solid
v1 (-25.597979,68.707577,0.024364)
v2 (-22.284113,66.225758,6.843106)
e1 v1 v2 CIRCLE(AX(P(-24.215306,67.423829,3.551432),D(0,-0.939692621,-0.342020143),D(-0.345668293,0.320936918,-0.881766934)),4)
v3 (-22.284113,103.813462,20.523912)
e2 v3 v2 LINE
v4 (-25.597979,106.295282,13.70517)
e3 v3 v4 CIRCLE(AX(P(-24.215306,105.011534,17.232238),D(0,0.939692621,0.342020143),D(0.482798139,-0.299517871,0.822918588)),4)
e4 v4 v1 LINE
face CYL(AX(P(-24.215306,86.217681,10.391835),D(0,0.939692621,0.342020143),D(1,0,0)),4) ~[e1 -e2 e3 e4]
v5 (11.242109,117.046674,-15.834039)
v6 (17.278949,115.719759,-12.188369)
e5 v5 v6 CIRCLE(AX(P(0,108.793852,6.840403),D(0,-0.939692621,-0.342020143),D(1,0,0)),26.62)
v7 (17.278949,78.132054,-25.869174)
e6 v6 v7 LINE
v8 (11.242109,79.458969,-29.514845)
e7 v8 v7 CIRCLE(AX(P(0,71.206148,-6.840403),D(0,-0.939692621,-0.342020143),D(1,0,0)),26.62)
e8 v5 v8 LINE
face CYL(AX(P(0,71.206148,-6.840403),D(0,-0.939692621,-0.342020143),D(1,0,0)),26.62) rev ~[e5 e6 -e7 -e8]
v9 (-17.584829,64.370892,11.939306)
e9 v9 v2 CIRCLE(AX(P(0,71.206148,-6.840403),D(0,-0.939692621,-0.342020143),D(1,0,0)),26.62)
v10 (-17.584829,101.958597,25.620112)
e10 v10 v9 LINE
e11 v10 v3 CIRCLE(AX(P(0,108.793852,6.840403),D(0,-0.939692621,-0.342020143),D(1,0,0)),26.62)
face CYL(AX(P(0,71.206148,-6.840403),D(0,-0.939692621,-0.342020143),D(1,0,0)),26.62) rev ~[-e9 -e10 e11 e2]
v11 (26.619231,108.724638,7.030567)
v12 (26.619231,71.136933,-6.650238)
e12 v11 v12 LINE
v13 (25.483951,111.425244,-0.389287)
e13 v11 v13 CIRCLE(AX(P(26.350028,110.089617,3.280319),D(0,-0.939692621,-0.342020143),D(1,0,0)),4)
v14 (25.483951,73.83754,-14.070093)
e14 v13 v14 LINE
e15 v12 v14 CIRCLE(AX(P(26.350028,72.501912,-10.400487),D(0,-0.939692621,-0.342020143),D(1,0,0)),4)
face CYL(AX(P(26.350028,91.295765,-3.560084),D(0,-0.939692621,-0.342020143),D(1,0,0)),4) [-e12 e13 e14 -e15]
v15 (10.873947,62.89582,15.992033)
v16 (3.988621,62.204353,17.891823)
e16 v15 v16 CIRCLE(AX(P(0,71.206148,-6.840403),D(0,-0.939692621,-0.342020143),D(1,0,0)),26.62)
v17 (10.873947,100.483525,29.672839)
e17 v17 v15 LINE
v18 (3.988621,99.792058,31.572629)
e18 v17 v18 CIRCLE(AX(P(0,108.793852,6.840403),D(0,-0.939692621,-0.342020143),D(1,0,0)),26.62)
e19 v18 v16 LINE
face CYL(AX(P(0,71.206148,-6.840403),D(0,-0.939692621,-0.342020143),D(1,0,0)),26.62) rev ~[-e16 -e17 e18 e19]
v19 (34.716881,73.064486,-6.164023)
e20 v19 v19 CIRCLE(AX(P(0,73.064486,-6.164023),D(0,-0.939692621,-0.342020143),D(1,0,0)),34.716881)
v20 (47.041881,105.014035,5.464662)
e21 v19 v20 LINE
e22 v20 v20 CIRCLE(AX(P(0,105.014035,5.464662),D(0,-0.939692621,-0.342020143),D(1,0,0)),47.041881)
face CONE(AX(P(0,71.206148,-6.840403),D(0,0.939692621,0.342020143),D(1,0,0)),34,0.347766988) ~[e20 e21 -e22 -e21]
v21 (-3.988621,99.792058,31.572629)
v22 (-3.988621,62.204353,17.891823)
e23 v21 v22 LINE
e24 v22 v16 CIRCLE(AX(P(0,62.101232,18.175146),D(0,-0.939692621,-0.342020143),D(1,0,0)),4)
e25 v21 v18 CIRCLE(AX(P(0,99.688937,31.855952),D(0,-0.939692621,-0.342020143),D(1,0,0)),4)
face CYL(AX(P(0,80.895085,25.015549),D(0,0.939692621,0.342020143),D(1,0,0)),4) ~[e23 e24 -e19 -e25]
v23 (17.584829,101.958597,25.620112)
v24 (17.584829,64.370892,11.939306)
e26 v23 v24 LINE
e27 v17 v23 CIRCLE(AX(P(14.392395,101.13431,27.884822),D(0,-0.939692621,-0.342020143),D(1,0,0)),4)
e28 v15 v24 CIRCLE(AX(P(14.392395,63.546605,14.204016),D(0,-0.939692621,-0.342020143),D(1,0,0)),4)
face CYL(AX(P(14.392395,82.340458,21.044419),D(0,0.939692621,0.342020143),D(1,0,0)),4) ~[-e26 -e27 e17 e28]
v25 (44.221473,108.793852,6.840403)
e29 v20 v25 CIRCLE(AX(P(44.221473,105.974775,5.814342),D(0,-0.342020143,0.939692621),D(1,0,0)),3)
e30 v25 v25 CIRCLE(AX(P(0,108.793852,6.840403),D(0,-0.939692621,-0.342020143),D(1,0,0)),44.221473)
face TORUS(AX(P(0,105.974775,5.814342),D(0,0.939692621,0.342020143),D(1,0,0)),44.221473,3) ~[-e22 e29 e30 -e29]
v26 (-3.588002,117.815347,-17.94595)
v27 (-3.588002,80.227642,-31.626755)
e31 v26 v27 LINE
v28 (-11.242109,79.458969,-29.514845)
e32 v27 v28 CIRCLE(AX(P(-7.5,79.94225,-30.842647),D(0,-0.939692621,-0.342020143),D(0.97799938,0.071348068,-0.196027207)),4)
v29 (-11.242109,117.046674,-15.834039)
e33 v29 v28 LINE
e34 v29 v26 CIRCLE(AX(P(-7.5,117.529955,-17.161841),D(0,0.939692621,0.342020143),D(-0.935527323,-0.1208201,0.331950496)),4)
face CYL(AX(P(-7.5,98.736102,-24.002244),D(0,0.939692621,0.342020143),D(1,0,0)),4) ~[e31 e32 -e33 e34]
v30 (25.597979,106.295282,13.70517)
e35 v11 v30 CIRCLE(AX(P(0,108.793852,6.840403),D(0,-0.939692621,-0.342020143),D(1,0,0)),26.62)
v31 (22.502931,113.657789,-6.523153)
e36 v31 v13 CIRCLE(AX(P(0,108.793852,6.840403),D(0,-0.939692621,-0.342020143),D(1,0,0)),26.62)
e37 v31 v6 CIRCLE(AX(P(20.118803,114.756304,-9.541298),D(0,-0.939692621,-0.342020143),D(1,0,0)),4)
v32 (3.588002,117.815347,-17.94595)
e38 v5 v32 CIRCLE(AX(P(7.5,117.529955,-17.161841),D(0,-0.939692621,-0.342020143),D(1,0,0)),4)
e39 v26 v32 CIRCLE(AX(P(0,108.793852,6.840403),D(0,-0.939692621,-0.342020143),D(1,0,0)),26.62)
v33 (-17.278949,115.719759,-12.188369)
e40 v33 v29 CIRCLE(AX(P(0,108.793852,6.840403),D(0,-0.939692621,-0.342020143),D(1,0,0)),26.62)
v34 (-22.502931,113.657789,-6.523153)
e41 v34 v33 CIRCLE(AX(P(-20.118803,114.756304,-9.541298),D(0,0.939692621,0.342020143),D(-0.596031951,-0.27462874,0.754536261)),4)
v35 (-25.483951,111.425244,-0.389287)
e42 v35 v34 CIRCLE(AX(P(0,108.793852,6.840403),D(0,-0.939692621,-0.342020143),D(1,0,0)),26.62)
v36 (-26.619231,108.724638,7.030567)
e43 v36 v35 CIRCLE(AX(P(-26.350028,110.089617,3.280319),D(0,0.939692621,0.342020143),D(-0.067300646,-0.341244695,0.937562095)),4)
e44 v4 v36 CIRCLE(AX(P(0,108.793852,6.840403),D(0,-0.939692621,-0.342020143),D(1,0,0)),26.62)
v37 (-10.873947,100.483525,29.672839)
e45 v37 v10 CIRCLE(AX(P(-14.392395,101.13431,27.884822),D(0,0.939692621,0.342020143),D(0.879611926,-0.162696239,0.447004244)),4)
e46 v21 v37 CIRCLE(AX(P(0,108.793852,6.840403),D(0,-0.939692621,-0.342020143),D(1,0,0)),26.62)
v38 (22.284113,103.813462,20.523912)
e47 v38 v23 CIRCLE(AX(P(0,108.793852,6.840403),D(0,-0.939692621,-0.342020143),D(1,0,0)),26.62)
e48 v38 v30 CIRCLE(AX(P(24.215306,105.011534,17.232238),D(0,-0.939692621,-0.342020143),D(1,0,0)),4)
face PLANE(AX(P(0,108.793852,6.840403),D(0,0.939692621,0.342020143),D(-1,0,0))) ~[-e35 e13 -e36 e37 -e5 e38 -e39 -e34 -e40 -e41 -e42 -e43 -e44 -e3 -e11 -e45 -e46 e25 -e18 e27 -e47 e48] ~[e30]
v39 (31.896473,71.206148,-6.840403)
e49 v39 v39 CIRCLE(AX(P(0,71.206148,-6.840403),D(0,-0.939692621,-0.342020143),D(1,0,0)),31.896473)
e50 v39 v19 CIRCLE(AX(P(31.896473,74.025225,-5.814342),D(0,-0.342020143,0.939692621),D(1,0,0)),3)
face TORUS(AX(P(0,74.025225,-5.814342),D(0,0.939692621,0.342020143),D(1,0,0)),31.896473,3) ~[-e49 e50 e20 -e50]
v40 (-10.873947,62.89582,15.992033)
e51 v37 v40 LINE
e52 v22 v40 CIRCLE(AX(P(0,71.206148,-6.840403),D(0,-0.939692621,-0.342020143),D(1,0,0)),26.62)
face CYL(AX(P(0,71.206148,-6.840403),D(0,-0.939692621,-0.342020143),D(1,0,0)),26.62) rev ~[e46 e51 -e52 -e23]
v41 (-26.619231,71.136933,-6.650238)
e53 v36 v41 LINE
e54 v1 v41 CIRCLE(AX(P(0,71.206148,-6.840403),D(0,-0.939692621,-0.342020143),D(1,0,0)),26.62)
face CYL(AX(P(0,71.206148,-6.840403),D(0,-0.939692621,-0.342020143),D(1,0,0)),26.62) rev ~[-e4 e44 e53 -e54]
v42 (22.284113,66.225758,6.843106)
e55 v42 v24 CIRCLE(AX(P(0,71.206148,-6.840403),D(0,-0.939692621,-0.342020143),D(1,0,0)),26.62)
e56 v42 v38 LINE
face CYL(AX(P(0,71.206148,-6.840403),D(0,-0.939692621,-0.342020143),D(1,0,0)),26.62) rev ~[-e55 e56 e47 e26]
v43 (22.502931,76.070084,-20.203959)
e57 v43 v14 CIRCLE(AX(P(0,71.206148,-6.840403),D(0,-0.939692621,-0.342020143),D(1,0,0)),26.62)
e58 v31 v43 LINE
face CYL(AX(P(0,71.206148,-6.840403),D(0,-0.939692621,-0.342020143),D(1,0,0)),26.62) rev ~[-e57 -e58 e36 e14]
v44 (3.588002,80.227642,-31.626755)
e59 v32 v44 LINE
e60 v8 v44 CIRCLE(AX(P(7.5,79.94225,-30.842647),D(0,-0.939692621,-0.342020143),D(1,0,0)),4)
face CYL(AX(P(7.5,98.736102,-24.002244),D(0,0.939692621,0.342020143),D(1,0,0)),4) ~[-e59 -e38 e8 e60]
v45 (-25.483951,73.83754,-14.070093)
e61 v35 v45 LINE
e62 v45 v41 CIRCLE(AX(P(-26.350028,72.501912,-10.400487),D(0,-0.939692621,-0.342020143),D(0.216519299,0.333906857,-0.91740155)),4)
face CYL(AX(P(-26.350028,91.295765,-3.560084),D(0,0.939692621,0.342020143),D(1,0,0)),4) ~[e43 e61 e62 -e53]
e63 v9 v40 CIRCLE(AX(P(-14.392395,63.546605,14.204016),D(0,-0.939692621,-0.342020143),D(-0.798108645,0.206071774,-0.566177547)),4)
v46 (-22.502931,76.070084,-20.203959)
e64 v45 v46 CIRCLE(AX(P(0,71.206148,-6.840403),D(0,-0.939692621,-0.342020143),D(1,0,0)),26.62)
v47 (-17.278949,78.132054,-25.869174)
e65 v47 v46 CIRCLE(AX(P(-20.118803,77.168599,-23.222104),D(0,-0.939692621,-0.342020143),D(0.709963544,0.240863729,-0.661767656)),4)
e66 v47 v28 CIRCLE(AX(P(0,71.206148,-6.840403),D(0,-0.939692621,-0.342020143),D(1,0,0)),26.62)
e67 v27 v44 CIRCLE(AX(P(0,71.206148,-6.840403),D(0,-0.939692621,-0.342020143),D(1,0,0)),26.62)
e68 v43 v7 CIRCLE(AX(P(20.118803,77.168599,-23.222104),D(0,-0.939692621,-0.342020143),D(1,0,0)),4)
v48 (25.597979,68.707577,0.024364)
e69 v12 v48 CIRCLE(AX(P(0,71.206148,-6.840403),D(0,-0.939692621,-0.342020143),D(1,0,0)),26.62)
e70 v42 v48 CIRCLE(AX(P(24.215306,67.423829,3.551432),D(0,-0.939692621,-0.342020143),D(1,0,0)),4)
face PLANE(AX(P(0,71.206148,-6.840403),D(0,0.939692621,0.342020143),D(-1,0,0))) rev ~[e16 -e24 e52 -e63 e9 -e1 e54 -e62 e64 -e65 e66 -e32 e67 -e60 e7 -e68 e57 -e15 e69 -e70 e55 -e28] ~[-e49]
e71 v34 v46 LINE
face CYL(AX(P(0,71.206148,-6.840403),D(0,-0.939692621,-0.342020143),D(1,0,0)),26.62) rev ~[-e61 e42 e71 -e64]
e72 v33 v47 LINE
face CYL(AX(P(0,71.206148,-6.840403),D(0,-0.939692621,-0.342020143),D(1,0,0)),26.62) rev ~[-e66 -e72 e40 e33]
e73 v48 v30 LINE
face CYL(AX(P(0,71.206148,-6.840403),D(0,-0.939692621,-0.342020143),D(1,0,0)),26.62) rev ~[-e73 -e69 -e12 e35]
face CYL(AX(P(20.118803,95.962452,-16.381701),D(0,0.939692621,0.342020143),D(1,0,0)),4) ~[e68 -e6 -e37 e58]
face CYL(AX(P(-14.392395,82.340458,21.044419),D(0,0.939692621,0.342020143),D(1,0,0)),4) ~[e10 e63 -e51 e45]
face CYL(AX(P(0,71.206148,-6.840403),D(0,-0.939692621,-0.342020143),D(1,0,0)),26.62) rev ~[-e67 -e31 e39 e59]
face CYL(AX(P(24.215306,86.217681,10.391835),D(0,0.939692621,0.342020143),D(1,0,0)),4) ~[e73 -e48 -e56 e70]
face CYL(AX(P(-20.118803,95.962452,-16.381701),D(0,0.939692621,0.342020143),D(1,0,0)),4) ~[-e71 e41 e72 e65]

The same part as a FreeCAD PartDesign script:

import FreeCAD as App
import Part
import Sketcher
from FreeCAD import Vector


def edges_at(feature, points):
    """Names of the edges that pass closest to the given points."""
    edges = feature.Shape.Edges
    near = lambda p: min(range(len(edges)), key=lambda i: edges[i].distToShape(Part.Vertex(*p))[0])
    return sorted({f"Edge{near(p) + 1}" for p in points})

doc = App.newDocument("Part")
body = doc.addObject("PartDesign::Body", "Body")
body.AllowCompound = True

# Sketch on XZ plane
sketch1 = doc.addObject("Sketcher::SketchObject", "Sketch")
body.addObject(sketch1)
sketch1.AttachmentSupport = (doc.XZ_Plane, [""])
sketch1.MapMode = "FlatFace"
sketch1.addGeometry(Part.Circle(Vector(0, 26.620991, 0), Vector(0, 0, 1), 4), False)
sketch1.addGeometry(Part.Circle(Vector(14.392395, 22.395003, 0), Vector(0, 0, 1), 4), False)
sketch1.addGeometry(Part.Circle(Vector(24.215306, 11.05876, 0), Vector(0, 0, 1), 4), False)
sketch1.addGeometry(Part.Circle(Vector(26.350028, -3.788562, 0), Vector(0, 0, 1), 4), False)
sketch1.addGeometry(Part.Circle(Vector(20.118803, -17.433042, 0), Vector(0, 0, 1), 4), False)
sketch1.addGeometry(Part.Circle(Vector(7.5, -25.542654, 0), Vector(0, 0, 1), 4), False)
sketch1.addGeometry(Part.Circle(Vector(-7.5, -25.542654, 0), Vector(0, 0, 1), 4), False)
sketch1.addGeometry(Part.Circle(Vector(-26.350028, -3.788562, 0), Vector(0, 0, 1), 4), False)
sketch1.addGeometry(Part.Circle(Vector(-24.215306, 11.05876, 0), Vector(0, 0, 1), 4), False)
sketch1.addGeometry(Part.Circle(Vector(-14.392395, 22.395003, 0), Vector(0, 0, 1), 4), False)
sketch1.addGeometry(Part.Circle(Vector(-20.118803, -17.433042, 0), Vector(0, 0, 1), 4), False)
sketch1.addConstraint(Sketcher.Constraint("Equal", 0, 1))
sketch1.addConstraint(Sketcher.Constraint("Equal", 1, 2))
sketch1.addConstraint(Sketcher.Constraint("Equal", 2, 3))
sketch1.addConstraint(Sketcher.Constraint("Equal", 3, 4))
sketch1.addConstraint(Sketcher.Constraint("Equal", 4, 5))
sketch1.addConstraint(Sketcher.Constraint("Equal", 5, 6))
sketch1.addConstraint(Sketcher.Constraint("Equal", 6, 7))
sketch1.addConstraint(Sketcher.Constraint("Equal", 7, 8))
sketch1.addConstraint(Sketcher.Constraint("Equal", 8, 9))
sketch1.addConstraint(Sketcher.Constraint("Equal", 9, 10))
sketch1.addConstraint(Sketcher.Constraint("Symmetric", 5, 3, 6, 3, -2))
sketch1.addConstraint(Sketcher.Constraint("Symmetric", 3, 3, 7, 3, -2))
sketch1.addConstraint(Sketcher.Constraint("Symmetric", 2, 3, 8, 3, -2))
sketch1.addConstraint(Sketcher.Constraint("Symmetric", 1, 3, 9, 3, -2))
sketch1.addConstraint(Sketcher.Constraint("Symmetric", 4, 3, 10, 3, -2))
sketch1.addConstraint(Sketcher.Constraint("PointOnObject", 0, 3, -2))
sketch1.addConstraint(Sketcher.Constraint("Diameter", 0, 8.0))
sketch1.addConstraint(Sketcher.Constraint("DistanceX", 6, 3, 5, 3, 15.0))
sketch1.addConstraint(Sketcher.Constraint("DistanceY", 4, 3, 2, 3, 28.491802))
sketch1.addConstraint(Sketcher.Constraint("DistanceX", 8, 3, 1, 3, 38.6077))
sketch1.addConstraint(Sketcher.Constraint("DistanceY", -1, 1, 0, 3, 26.620991))
sketch1.addConstraint(Sketcher.Constraint("DistanceY", -1, 1, 2, 3, 11.05876))
sketch1.addConstraint(Sketcher.Constraint("DistanceX", -1, 1, 3, 3, 26.350028))
sketch1.addConstraint(Sketcher.Constraint("DistanceY", 1, 3, 0, 3, 4.225988))
sketch1.addConstraint(Sketcher.Constraint("DistanceX", 1, 3, 2, 3, 9.822911))
sketch1.addConstraint(Sketcher.Constraint("DistanceY", 3, 3, 2, 3, 14.847322))
sketch1.addConstraint(Sketcher.Constraint("DistanceX", 1, 3, 4, 3, 5.726408))
sketch1.addConstraint(Sketcher.Constraint("DistanceY", 5, 3, -1, 1, 25.542654))
pad1 = doc.addObject("PartDesign::Pad", "Pad")
body.addObject(pad1)
pad1.Profile = sketch1
pad1.Length = 40
pad1.Midplane = True
body2 = doc.addObject("PartDesign::Body", "Body001")

# Sketch on XY plane
sketch2 = doc.addObject("Sketcher::SketchObject", "Sketch001")
body2.addObject(sketch2)
sketch2.AttachmentSupport = (doc.getObject("XY_Plane001"), [""])
sketch2.MapMode = "FlatFace"
sketch2.addGeometry(Part.Circle(Vector(0, 0, 0), Vector(0, 0, 1), 26.62), False)
sketch2.addConstraint(Sketcher.Constraint("Coincident", 0, 3, -1, 1))
sketch2.addConstraint(Sketcher.Constraint("Diameter", 0, 53.24))
pad2 = doc.addObject("PartDesign::Pad", "Pad001")
body2.addObject(pad2)
pad2.Profile = sketch2
pad2.Length = 40
body3 = doc.addObject("PartDesign::Body", "Body002")
doc.recompute()

body2.Placement = App.Placement(Vector(0, 0, 0), App.Rotation(Vector(1, 0, 0), 90))
boolean = doc.addObject("PartDesign::Boolean", "Boolean")
body3.addObject(boolean)
boolean.Type = "Fuse"
boolean.addObjects([body2])
body4 = doc.addObject("PartDesign::Body", "Body003")
doc.recompute()

body3.Placement = App.Placement(Vector(0, 20, 0), App.Rotation(Vector(0, 0, 1), 0))
boolean2 = doc.addObject("PartDesign::Boolean", "Boolean001")
body4.addObject(boolean2)
boolean2.Type = "Fuse"
boolean2.addObjects([body3])
doc.recompute()

boolean3 = doc.addObject("PartDesign::Boolean", "Boolean002")
body4.addObject(boolean3)
boolean3.Type = "Cut"
boolean3.addObjects([body])
body5 = doc.addObject("PartDesign::Body", "Body004")
doc.recompute()

body4.Placement = App.Placement(Vector(0, 0, 0), App.Rotation(Vector(1, 0, 0), 340))
boolean4 = doc.addObject("PartDesign::Boolean", "Boolean003")
body5.addObject(boolean4)
boolean4.Type = "Fuse"
boolean4.addObjects([body4])
body6 = doc.addObject("PartDesign::Body", "Body005")

# Sketch on XZ plane
sketch3 = doc.addObject("Sketcher::SketchObject", "Sketch002")
body6.addObject(sketch3)
sketch3.AttachmentSupport = (doc.getObject("XZ_Plane005"), [""])
sketch3.MapMode = "FlatFace"
sketch3.addGeometry(Part.LineSegment(Vector(0, 0, 0), Vector(34, 0, 0)), False)
sketch3.addGeometry(Part.LineSegment(Vector(34, 0, 0), Vector(48.5, 40, 0)), False)
sketch3.addGeometry(Part.LineSegment(Vector(48.5, 40, 0), Vector(0, 40, 0)), False)
sketch3.addGeometry(Part.LineSegment(Vector(0, 40, 0), Vector(0, 0, 0)), False)
sketch3.addConstraint(Sketcher.Constraint("Coincident", 0, 2, 1, 1))
sketch3.addConstraint(Sketcher.Constraint("Coincident", 1, 2, 2, 1))
sketch3.addConstraint(Sketcher.Constraint("Coincident", 2, 2, 3, 1))
sketch3.addConstraint(Sketcher.Constraint("Coincident", 3, 2, 0, 1))
sketch3.addConstraint(Sketcher.Constraint("Horizontal", 0))
sketch3.addConstraint(Sketcher.Constraint("Horizontal", 2))
sketch3.addConstraint(Sketcher.Constraint("Vertical", 3))
sketch3.addConstraint(Sketcher.Constraint("Coincident", 3, 2, -1, 1))
sketch3.addConstraint(Sketcher.Constraint("DistanceX", 0, 1, 0, 2, 34.0))
sketch3.addConstraint(Sketcher.Constraint("DistanceY", 3, 2, 3, 1, 40.0))
sketch3.addConstraint(Sketcher.Constraint("DistanceX", 2, 2, 2, 1, 48.5))
revolution = doc.addObject("PartDesign::Revolution", "Revolution")
body6.addObject(revolution)
revolution.Profile = sketch3
revolution.ReferenceAxis = (sketch3, ["V_Axis"])
revolution.Angle = 360
body7 = doc.addObject("PartDesign::Body", "Body006")
doc.recompute()

body6.Placement = App.Placement(Vector(0, 18.793852, -6.840403), App.Rotation(Vector(1, 0, 0), 70))
boolean5 = doc.addObject("PartDesign::Boolean", "Boolean004")
body7.addObject(boolean5)
boolean5.Type = "Fuse"
boolean5.addObjects([body6])
doc.recompute()

boolean6 = doc.addObject("PartDesign::Boolean", "Boolean005")
body7.addObject(boolean6)
boolean6.Type = "Cut"
boolean6.addObjects([body5])
doc.recompute()

fillet = doc.addObject("PartDesign::Fillet", "Fillet")
body7.addObject(fillet)
fillet.Base = (boolean6, edges_at(boolean6, [(-48.5, -18.794, 6.84), (-34, 18.794, -6.84)]))
fillet.Radius = 3
body8 = doc.addObject("PartDesign::Body", "Body007")
doc.recompute()

mirroring = doc.addObject("Part::Mirroring", "Mirroring")
mirroring.Source = body7
mirroring.Base = Vector(0, 45, 0)
mirroring.Normal = Vector(0, 1, 0)
body8.BaseFeature = mirroring
doc.recompute()
body7.Visibility = False
mirroring.Visibility = False

doc.recompute()
